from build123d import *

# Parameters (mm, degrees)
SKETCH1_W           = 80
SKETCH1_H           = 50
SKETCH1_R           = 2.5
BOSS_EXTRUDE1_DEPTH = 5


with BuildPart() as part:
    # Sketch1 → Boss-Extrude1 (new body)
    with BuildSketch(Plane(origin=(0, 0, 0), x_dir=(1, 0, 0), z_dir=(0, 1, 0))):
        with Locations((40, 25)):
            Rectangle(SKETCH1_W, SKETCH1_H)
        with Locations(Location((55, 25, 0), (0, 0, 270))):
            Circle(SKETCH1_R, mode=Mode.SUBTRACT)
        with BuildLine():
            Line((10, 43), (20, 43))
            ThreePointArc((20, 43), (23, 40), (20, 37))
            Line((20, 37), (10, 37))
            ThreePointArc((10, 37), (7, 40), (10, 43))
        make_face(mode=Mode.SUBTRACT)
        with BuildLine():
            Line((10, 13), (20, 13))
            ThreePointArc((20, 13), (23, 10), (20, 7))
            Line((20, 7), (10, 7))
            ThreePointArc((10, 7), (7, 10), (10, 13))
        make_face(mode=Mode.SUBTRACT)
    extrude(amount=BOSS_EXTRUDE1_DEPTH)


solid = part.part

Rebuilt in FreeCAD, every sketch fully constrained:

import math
import FreeCAD as App
import Part
import Sketcher
from FreeCAD import Vector

doc = App.newDocument("Part")
body = doc.addObject("PartDesign::Body", "Body")

# Sketch on XZ plane
sketch1 = body.newObject("Sketcher::SketchObject", "Sketch")
sketch1.AttachmentSupport = (doc.getObject("XZ_Plane"), [""])
sketch1.MapMode = "FlatFace"
sketch1.addGeometry([
    Part.LineSegment(Vector(0, -50, 0), Vector(0, 0, 0)),  # 0
    Part.LineSegment(Vector(0, 0, 0), Vector(80, 0, 0)),  # 1
    Part.LineSegment(Vector(80, 0, 0), Vector(80, -50, 0)),  # 2
    Part.LineSegment(Vector(80, -50, 0), Vector(0, -50, 0)),  # 3
    Part.ArcOfCircle(Part.Circle(Vector(10, -10, 0), Vector(0, 0, 1), 3), math.radians(90), math.radians(270)),  # 4
    Part.LineSegment(Vector(10, -13, 0), Vector(20, -13, 0)),  # 5
    Part.ArcOfCircle(Part.Circle(Vector(20, -10, 0), Vector(0, 0, 1), 3), math.radians(-90), math.radians(90)),  # 6
    Part.LineSegment(Vector(20, -7, 0), Vector(10, -7, 0)),  # 7
    Part.ArcOfCircle(Part.Circle(Vector(10, -40, 0), Vector(0, 0, 1), 3), math.radians(90), math.radians(270)),  # 8
    Part.LineSegment(Vector(10, -43, 0), Vector(20, -43, 0)),  # 9
    Part.ArcOfCircle(Part.Circle(Vector(20, -40, 0), Vector(0, 0, 1), 3), math.radians(-90), math.radians(90)),  # 10
    Part.LineSegment(Vector(20, -37, 0), Vector(10, -37, 0)),  # 11
    Part.Circle(Vector(55, -25, 0), Vector(0, 0, 1), 2.5),  # 12
], False)
sketch1.addConstraint([
    Sketcher.Constraint("Coincident", 0, 2, 1, 1),
    Sketcher.Constraint("Coincident", 1, 2, 2, 1),
    Sketcher.Constraint("Coincident", 2, 2, 3, 1),
    Sketcher.Constraint("Coincident", 3, 2, 0, 1),
    Sketcher.Constraint("Tangent", 4, 2, 5, 1),
    Sketcher.Constraint("Tangent", 5, 2, 6, 1),
    Sketcher.Constraint("Tangent", 6, 2, 7, 1),
    Sketcher.Constraint("Tangent", 7, 2, 4, 1),
    Sketcher.Constraint("Tangent", 8, 2, 9, 1),
    Sketcher.Constraint("Tangent", 9, 2, 10, 1),
    Sketcher.Constraint("Tangent", 10, 2, 11, 1),
    Sketcher.Constraint("Tangent", 11, 2, 8, 1),
    Sketcher.Constraint("Vertical", 0),
    Sketcher.Constraint("Horizontal", 1),
    Sketcher.Constraint("Vertical", 2),
    Sketcher.Constraint("Horizontal", 3),
    Sketcher.Constraint("Horizontal", 5),
    Sketcher.Constraint("Horizontal", 7),
    Sketcher.Constraint("Horizontal", 9),
    Sketcher.Constraint("Horizontal", 11),
    Sketcher.Constraint("Coincident", 0, 2, -1, 1),
    Sketcher.Constraint("Equal", 6, 8),
    Sketcher.Constraint("Vertical", 4, 3, 8, 3),
    Sketcher.Constraint("Vertical", 6, 3, 10, 3),
    Sketcher.Constraint("Diameter", 12, 5.0),
    Sketcher.Constraint("Radius", 4, 3.0),
    Sketcher.Constraint("DistanceX", 1, 1, 1, 2, 80.0),
    Sketcher.Constraint("DistanceX", 5, 1, 5, 2, 10.0),
    Sketcher.Constraint("DistanceY", 0, 1, 0, 2, 50.0),
    Sketcher.Constraint("DistanceX", -1, 1, 4, 3, 10.0),
    Sketcher.Constraint("DistanceY", 4, 3, -1, 1, 10.0),
    Sketcher.Constraint("DistanceY", 8, 3, -1, 1, 40.0),
    Sketcher.Constraint("DistanceX", -1, 1, 12, 3, 55.0),
    Sketcher.Constraint("DistanceY", 12, 3, -1, 1, 25.0),
])
pad1 = body.newObject("PartDesign::Pad", "Pad")
pad1.Profile = sketch1
pad1.Length = 5
pad1.Reversed = True

doc.recompute()
